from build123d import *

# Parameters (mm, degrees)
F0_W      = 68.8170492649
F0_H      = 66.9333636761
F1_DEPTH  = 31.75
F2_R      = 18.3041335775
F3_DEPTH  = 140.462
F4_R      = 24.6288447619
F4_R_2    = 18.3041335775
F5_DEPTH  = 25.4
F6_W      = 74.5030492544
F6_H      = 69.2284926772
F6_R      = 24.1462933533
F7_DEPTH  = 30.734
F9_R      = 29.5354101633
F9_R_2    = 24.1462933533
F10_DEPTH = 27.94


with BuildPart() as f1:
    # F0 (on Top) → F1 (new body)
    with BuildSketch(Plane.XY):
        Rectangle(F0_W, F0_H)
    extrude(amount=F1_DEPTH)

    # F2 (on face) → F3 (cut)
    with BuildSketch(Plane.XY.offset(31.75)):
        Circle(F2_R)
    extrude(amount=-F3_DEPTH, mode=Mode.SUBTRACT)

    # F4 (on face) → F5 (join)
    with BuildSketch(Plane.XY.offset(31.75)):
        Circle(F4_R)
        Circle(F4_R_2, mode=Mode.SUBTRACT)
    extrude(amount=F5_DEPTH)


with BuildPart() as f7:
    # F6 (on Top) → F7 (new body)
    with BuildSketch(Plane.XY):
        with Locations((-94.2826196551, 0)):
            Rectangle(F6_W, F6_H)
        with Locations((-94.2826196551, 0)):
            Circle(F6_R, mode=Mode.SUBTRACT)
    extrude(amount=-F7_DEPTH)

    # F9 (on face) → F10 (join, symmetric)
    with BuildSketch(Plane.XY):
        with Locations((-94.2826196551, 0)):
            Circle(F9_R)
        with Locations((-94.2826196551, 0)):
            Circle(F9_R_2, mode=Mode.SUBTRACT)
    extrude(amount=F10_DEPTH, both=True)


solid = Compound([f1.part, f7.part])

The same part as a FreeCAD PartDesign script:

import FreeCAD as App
import Part
import Sketcher
Q = App.Units.Quantity


def add_polygon(sketch, points):
    """Adds a closed chain of lines whose ends are joined by coincident constraints."""
    first, n = sketch.GeometryCount, len(points)
    for a, b in zip(points, points[1:] + points[:1]):
        sketch.addGeometry(Part.LineSegment(App.Vector(*a, 0), App.Vector(*b, 0)), False)
    for i in range(n):
        sketch.addConstraint(Sketcher.Constraint("Coincident", first + i, 2, first + (i + 1) % n, 1))

doc = App.newDocument("Part")
body = doc.addObject("PartDesign::Body", "Body")

sketch1 = body.newObject("Sketcher::SketchObject", "Sketch")
sketch1.AttachmentSupport = (doc.getObject("XY_Plane"), [""])
sketch1.MapMode = "FlatFace"
add_polygon(sketch1, [(-34, 33), (-34, -33), (34, -33), (34, 33)])
sketch1.addConstraint([
    Sketcher.Constraint("Vertical", 0),
    Sketcher.Constraint("Horizontal", 1),
    Sketcher.Constraint("Vertical", 2),
    Sketcher.Constraint("Horizontal", 3),
    Sketcher.Constraint("Symmetric", 0, 2, 2, 2, -1, 1),
    Sketcher.Constraint("DistanceX", 1, 1, 1, 2, Q("68.817049 mm")),
    Sketcher.Constraint("DistanceY", 0, 2, 0, 1, Q("66.933364 mm")),
])
pad1 = body.newObject("PartDesign::Pad", "Pad")
pad1.Profile = sketch1
pad1.Length = Q("1.25 in")

sketch2 = body.newObject("Sketcher::SketchObject", "Sketch001")
sketch2.AttachmentSupport = (doc.getObject("XY_Plane"), [""])
sketch2.MapMode = "FlatFace"
sketch2.AttachmentOffset = App.Placement(App.Vector(0, 0, 1.25 * 25.4), App.Rotation())
sketch2.addGeometry(Part.Circle(App.Vector(0, 0, 0), App.Vector(0, 0, 1), 18), False)
sketch2.addConstraint([
    Sketcher.Constraint("Coincident", 0, 3, -1, 1),
    Sketcher.Constraint("Diameter", 0, Q("36.608267 mm")),
])
pocket1 = body.newObject("PartDesign::Pocket", "Pocket")
pocket1.Profile = sketch2
pocket1.Length = Q("5.53 in")

sketch3 = body.newObject("Sketcher::SketchObject", "Sketch002")
sketch3.AttachmentSupport = (doc.getObject("XY_Plane"), [""])
sketch3.MapMode = "FlatFace"
sketch3.AttachmentOffset = App.Placement(App.Vector(0, 0, 1.25 * 25.4), App.Rotation())
sketch3.addGeometry([
    Part.Circle(App.Vector(0, 0, 0), App.Vector(0, 0, 1), 25),
    Part.Circle(App.Vector(0, 0, 0), App.Vector(0, 0, 1), 18),
], False)
sketch3.addConstraint([
    Sketcher.Constraint("Coincident", 0, 3, -1, 1),
    Sketcher.Constraint("Coincident", 1, 3, -1, 1),
    Sketcher.Constraint("Diameter", 0, Q("49.25769 mm")),
    Sketcher.Constraint("Diameter", 1, Q("36.608267 mm")),
])
pad2 = body.newObject("PartDesign::Pad", "Pad001")
pad2.Profile = sketch3
pad2.Length = Q("1 in")
body2 = doc.addObject("PartDesign::Body", "Body001")

sketch4 = body2.newObject("Sketcher::SketchObject", "Sketch003")
sketch4.AttachmentSupport = (doc.getObject("XY_Plane001"), [""])
sketch4.MapMode = "FlatFace"
add_polygon(sketch4, [(-132, 35), (-132, -35), (-57, -35), (-57, 35)])
sketch4.addGeometry(Part.Circle(App.Vector(-94, 0, 0), App.Vector(0, 0, 1), 24), False)
sketch4.addConstraint([
    Sketcher.Constraint("Vertical", 0),
    Sketcher.Constraint("Horizontal", 1),
    Sketcher.Constraint("Vertical", 2),
    Sketcher.Constraint("Horizontal", 3),
    Sketcher.Constraint("PointOnObject", 4, 3, -1),
    Sketcher.Constraint("Diameter", 4, Q("48.292587 mm")),
    Sketcher.Constraint("DistanceX", 1, 1, 1, 2, Q("74.503049 mm")),
    Sketcher.Constraint("DistanceY", 0, 2, 0, 1, Q("69.228493 mm")),
    Sketcher.Constraint("DistanceX", 4, 3, -1, 1, Q("94.28262 mm")),
    Sketcher.Constraint("DistanceX", 0, 2, -1, 1, Q("131.534144 mm")),
    Sketcher.Constraint("DistanceY", 0, 2, -1, 1, Q("34.614246 mm")),
])
pad3 = body2.newObject("PartDesign::Pad", "Pad002")
pad3.Profile = sketch4
pad3.Length = Q("1.21 in")
pad3.Reversed = True

sketch5 = body2.newObject("Sketcher::SketchObject", "Sketch004")
sketch5.AttachmentSupport = (doc.getObject("XY_Plane001"), [""])
sketch5.MapMode = "FlatFace"
sketch5.addGeometry([
    Part.Circle(App.Vector(-94, 0, 0), App.Vector(0, 0, 1), 30),
    Part.Circle(App.Vector(-94, 0, 0), App.Vector(0, 0, 1), 24),
], False)
sketch5.addConstraint([
    Sketcher.Constraint("Coincident", 1, 3, 0, 3),
    Sketcher.Constraint("PointOnObject", 0, 3, -1),
    Sketcher.Constraint("Diameter", 0, Q("59.07082 mm")),
    Sketcher.Constraint("Diameter", 1, Q("48.292587 mm")),
    Sketcher.Constraint("DistanceX", 0, 3, -1, 1, Q("94.28262 mm")),
])
pad4 = body2.newObject("PartDesign::Pad", "Pad003")
pad4.Profile = sketch5
pad4.Length = Q("2.2 in")
pad4.Midplane = True

doc.recompute()
